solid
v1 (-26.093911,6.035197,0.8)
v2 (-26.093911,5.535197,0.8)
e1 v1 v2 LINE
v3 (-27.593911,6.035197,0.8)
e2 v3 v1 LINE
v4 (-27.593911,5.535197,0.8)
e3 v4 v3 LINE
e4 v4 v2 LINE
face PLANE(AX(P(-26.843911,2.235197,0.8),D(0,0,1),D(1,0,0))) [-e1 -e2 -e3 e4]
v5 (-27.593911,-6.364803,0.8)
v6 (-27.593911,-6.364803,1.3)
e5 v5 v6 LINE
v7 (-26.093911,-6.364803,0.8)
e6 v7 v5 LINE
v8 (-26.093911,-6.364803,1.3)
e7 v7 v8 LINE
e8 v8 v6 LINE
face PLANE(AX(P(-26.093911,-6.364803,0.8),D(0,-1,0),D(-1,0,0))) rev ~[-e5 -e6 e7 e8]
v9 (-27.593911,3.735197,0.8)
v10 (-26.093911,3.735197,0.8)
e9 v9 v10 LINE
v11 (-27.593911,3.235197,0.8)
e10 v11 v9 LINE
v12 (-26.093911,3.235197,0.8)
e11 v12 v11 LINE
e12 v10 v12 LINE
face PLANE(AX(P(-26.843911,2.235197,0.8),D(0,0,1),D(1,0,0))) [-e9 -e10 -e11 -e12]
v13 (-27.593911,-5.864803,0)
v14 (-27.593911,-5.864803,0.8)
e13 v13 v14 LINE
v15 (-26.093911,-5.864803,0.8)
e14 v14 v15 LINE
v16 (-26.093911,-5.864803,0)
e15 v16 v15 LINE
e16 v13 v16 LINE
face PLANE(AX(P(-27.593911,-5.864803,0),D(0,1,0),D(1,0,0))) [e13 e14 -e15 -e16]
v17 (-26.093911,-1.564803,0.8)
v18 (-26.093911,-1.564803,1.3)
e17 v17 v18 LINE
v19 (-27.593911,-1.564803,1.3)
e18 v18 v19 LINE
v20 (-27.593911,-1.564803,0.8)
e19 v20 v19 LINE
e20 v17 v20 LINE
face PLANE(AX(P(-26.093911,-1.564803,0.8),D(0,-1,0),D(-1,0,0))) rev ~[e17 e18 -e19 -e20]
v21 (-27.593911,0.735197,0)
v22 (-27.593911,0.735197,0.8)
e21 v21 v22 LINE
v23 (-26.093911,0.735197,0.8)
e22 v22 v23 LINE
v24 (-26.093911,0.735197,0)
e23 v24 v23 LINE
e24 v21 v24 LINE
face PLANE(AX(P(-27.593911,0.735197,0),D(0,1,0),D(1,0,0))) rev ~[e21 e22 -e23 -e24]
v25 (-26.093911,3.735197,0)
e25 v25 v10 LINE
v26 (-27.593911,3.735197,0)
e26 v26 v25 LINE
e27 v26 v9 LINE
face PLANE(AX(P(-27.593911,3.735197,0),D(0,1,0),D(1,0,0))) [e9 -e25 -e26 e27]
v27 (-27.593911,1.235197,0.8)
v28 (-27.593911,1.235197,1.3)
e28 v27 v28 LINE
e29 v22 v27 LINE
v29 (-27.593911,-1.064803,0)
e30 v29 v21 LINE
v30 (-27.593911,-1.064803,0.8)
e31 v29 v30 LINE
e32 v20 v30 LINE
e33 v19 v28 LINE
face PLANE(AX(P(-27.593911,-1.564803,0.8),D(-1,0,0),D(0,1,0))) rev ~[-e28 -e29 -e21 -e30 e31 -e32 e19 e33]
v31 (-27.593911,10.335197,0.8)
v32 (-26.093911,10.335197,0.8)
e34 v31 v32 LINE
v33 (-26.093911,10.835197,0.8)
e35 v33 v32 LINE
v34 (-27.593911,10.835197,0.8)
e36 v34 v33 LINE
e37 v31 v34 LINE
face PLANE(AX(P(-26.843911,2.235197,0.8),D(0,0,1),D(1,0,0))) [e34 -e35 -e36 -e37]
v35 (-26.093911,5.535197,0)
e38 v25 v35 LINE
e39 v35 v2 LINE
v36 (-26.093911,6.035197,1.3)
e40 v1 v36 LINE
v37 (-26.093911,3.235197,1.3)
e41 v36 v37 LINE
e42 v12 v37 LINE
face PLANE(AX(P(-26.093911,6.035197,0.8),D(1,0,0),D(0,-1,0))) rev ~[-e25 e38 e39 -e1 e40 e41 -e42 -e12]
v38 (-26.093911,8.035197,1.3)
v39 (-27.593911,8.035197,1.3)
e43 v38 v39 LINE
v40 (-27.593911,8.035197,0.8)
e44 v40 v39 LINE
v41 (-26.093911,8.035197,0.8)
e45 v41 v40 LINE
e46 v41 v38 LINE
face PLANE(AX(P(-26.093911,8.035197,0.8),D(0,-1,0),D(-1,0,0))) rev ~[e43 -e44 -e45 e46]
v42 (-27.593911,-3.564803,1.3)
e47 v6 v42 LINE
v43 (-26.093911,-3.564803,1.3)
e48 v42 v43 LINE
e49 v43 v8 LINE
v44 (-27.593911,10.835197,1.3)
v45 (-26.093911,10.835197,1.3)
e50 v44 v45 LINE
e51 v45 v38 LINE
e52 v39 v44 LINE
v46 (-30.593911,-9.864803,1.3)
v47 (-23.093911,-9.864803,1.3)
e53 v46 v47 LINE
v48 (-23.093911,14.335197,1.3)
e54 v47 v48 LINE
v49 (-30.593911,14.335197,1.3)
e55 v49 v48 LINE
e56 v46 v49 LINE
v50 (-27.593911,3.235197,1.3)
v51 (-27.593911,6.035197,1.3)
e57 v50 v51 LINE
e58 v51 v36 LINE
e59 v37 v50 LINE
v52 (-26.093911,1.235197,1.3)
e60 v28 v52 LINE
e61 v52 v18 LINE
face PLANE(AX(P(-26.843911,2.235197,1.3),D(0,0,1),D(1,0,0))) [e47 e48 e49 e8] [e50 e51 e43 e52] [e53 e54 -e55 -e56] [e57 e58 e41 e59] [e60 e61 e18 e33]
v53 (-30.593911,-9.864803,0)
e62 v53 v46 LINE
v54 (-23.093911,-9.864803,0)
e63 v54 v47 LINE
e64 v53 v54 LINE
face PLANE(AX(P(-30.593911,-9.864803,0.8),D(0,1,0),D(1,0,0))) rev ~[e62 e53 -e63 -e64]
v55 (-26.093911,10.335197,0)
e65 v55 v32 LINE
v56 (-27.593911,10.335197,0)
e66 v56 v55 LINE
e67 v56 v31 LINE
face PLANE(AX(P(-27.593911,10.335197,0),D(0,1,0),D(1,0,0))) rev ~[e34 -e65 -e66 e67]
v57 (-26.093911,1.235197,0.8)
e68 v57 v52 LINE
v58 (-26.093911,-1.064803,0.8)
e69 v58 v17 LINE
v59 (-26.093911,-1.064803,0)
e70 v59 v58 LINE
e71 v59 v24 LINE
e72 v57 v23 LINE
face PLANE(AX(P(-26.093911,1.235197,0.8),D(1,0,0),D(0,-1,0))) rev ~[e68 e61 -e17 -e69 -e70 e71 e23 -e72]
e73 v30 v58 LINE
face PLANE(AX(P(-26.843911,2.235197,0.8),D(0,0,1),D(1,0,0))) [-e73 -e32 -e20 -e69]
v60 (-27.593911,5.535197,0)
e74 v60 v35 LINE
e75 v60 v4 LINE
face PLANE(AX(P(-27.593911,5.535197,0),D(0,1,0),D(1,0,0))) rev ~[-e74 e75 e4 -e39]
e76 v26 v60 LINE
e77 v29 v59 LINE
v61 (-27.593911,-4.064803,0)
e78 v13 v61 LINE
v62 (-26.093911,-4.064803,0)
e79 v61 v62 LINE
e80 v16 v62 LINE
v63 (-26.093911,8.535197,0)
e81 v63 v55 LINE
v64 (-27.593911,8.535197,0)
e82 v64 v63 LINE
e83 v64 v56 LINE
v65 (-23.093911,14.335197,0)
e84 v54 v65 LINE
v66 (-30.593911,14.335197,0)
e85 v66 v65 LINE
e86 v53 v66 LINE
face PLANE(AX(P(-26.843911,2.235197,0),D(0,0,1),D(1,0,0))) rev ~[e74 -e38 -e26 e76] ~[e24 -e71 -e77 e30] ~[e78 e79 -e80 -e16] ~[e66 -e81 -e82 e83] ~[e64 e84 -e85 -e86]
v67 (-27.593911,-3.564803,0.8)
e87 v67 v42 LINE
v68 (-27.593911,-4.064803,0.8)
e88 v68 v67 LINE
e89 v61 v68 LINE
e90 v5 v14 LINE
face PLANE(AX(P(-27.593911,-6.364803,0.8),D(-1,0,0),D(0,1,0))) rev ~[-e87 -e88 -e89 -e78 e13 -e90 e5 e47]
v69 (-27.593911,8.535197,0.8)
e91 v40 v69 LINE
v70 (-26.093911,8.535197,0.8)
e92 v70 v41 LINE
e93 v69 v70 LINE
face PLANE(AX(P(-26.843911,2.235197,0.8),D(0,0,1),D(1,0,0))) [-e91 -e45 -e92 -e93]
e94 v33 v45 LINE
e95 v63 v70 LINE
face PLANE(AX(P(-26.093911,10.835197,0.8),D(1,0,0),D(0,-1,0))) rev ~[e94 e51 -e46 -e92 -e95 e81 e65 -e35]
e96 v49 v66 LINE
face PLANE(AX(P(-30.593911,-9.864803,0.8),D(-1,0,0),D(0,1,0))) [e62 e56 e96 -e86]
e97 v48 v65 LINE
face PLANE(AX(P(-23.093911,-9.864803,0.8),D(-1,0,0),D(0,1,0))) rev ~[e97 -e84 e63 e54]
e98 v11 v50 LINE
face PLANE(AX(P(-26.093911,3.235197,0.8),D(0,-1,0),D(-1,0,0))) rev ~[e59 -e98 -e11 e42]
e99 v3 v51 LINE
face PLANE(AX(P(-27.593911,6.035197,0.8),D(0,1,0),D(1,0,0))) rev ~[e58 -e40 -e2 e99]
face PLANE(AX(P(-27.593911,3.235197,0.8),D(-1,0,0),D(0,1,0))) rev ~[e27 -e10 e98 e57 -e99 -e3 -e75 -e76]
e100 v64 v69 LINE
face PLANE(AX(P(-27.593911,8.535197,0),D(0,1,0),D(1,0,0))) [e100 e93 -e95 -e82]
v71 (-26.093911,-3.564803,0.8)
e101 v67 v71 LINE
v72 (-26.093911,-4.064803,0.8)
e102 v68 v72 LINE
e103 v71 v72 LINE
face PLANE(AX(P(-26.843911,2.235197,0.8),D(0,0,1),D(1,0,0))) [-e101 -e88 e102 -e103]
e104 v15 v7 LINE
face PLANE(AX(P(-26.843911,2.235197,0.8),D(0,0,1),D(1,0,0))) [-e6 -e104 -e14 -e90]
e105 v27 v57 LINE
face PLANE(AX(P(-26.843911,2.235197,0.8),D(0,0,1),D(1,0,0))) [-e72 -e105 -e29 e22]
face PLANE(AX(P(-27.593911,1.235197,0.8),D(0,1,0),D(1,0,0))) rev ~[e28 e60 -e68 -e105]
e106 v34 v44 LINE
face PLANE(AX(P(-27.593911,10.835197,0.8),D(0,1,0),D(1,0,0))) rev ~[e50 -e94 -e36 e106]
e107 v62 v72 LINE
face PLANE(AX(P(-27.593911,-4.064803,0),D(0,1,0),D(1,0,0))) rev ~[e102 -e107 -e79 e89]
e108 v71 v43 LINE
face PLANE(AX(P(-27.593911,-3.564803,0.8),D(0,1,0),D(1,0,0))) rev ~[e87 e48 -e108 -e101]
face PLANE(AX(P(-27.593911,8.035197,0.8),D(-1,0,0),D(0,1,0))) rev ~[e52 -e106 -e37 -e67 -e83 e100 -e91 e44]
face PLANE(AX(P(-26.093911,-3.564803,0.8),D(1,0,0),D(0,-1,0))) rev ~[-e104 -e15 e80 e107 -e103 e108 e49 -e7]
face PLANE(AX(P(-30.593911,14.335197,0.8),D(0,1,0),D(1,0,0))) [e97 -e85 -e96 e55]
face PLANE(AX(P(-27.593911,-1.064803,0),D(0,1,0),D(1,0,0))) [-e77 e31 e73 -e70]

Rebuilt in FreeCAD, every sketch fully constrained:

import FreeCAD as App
import Part
import Sketcher

V = App.Vector


def add_polygon(sketch, points):
    """Adds a closed chain of lines whose ends are joined by coincident constraints."""
    first, n = sketch.GeometryCount, len(points)
    for a, b in zip(points, points[1:] + points[:1]):
        sketch.addGeometry(Part.LineSegment(App.Vector(*a, 0), App.Vector(*b, 0)), False)
    for i in range(n):
        sketch.addConstraint(Sketcher.Constraint("Coincident", first + i, 2, first + (i + 1) % n, 1))

doc = App.newDocument("Part")
body = doc.addObject("PartDesign::Body", "Body")

# Sketch on XY plane
sketch1 = doc.addObject("Sketcher::SketchObject", "Sketch")
body.addObject(sketch1)
sketch1.AttachmentSupport = (doc.XY_Plane, [""])
sketch1.MapMode = "FlatFace"
add_polygon(sketch1, [(-30.6, 14.3), (-30.6, -9.9), (-23.1, -9.9), (-23.1, 14.3)])  # lines 0-3
add_polygon(sketch1, [(-26.1, -5.9), (-27.6, -5.9), (-27.6, -4.1), (-26.1, -4.1)])  # lines 4-7
add_polygon(sketch1, [(-26.1, -1.1), (-27.6, -1.1), (-27.6, 0.7), (-26.1, 0.7)])  # lines 8-11
add_polygon(sketch1, [(-26.1, 3.7), (-27.6, 3.7), (-27.6, 5.5), (-26.1, 5.5)])  # lines 12-15
add_polygon(sketch1, [(-26.1, 8.5), (-27.6, 8.5), (-27.6, 10.3), (-26.1, 10.3)])  # lines 16-19
sketch1.addConstraint([
    Sketcher.Constraint("Vertical", 0),
    Sketcher.Constraint("Horizontal", 1),
    Sketcher.Constraint("Vertical", 2),
    Sketcher.Constraint("Horizontal", 3),
    Sketcher.Constraint("Horizontal", 4),
    Sketcher.Constraint("Vertical", 5),
    Sketcher.Constraint("Horizontal", 6),
    Sketcher.Constraint("Vertical", 7),
    Sketcher.Constraint("Horizontal", 8),
    Sketcher.Constraint("Vertical", 9),
    Sketcher.Constraint("Horizontal", 10),
    Sketcher.Constraint("Vertical", 11),
    Sketcher.Constraint("Horizontal", 12),
    Sketcher.Constraint("Vertical", 13),
    Sketcher.Constraint("Horizontal", 14),
    Sketcher.Constraint("Vertical", 15),
    Sketcher.Constraint("Horizontal", 16),
    Sketcher.Constraint("Vertical", 17),
    Sketcher.Constraint("Horizontal", 18),
    Sketcher.Constraint("Vertical", 19),
    Sketcher.Constraint("Vertical", 5, 2, 8, 2),
    Sketcher.Constraint("Vertical", 7, 2, 10, 2),
    Sketcher.Constraint("Vertical", 9, 2, 12, 2),
    Sketcher.Constraint("Vertical", 11, 2, 14, 2),
    Sketcher.Constraint("Vertical", 13, 2, 16, 2),
    Sketcher.Constraint("Vertical", 15, 2, 18, 2),
    Sketcher.Constraint("Equal", 7, 9),
    Sketcher.Constraint("Equal", 11, 13),
    Sketcher.Constraint("Equal", 15, 17),
    Sketcher.Constraint("DistanceX", 1, 1, 1, 2, 7.5),
    Sketcher.Constraint("DistanceX", 4, 2, 4, 1, 1.5),
    Sketcher.Constraint("DistanceY", 0, 2, 0, 1, 24.2),
    Sketcher.Constraint("DistanceY", 5, 1, 5, 2, 1.8),
    Sketcher.Constraint("DistanceX", 0, 2, 4, 2, 3.0),
    Sketcher.Constraint("DistanceY", 0, 2, 4, 2, 4.0),
    Sketcher.Constraint("DistanceY", 5, 2, 8, 2, 3.0),
    Sketcher.Constraint("DistanceY", 9, 2, 12, 2, 3.0),
    Sketcher.Constraint("DistanceY", 13, 2, 16, 2, 3.0),
    Sketcher.Constraint("DistanceX", 0, 2, -1, 1, 30.593911),
    Sketcher.Constraint("DistanceY", 0, 2, -1, 1, 9.864803),
])
pad1 = doc.addObject("PartDesign::Pad", "Pad")
body.addObject(pad1)
pad1.Profile = sketch1
pad1.Length = 0.8

# Sketch on XY plane
sketch2 = doc.addObject("Sketcher::SketchObject", "Sketch001")
body.addObject(sketch2)
sketch2.AttachmentSupport = (doc.XY_Plane, [""])
sketch2.MapMode = "FlatFace"
sketch2.AttachmentOffset = App.Placement(V(0, 0, 0.8), App.Rotation())
add_polygon(sketch2, [(-30.6, 14.3), (-30.6, -9.9), (-23.1, -9.9), (-23.1, 14.3)])  # lines 0-3
add_polygon(sketch2, [(-27.6, -6.4), (-27.6, -3.6), (-26.1, -3.6), (-26.1, -6.4)])  # lines 4-7
add_polygon(sketch2, [(-27.6, -1.6), (-27.6, 1.2), (-26.1, 1.2), (-26.1, -1.6)])  # lines 8-11
add_polygon(sketch2, [(-27.6, 3.2), (-27.6, 6), (-26.1, 6), (-26.1, 3.2)])  # lines 12-15
add_polygon(sketch2, [(-26.1, 10.8), (-26.1, 8), (-27.6, 8), (-27.6, 10.8)])  # lines 16-19
sketch2.addConstraint([
    Sketcher.Constraint("Vertical", 0),
    Sketcher.Constraint("Horizontal", 1),
    Sketcher.Constraint("Vertical", 2),
    Sketcher.Constraint("Horizontal", 3),
    Sketcher.Constraint("Vertical", 4),
    Sketcher.Constraint("Horizontal", 5),
    Sketcher.Constraint("Vertical", 6),
    Sketcher.Constraint("Horizontal", 7),
    Sketcher.Constraint("Vertical", 8),
    Sketcher.Constraint("Horizontal", 9),
    Sketcher.Constraint("Vertical", 10),
    Sketcher.Constraint("Horizontal", 11),
    Sketcher.Constraint("Vertical", 12),
    Sketcher.Constraint("Horizontal", 13),
    Sketcher.Constraint("Vertical", 14),
    Sketcher.Constraint("Horizontal", 15),
    Sketcher.Constraint("Vertical", 16),
    Sketcher.Constraint("Horizontal", 17),
    Sketcher.Constraint("Vertical", 18),
    Sketcher.Constraint("Horizontal", 19),
    Sketcher.Constraint("Vertical", 7, 2, 8, 2),
    Sketcher.Constraint("Vertical", 6, 2, 9, 2),
    Sketcher.Constraint("Vertical", 11, 2, 12, 2),
    Sketcher.Constraint("Vertical", 10, 2, 13, 2),
    Sketcher.Constraint("Vertical", 14, 2, 16, 2),
    Sketcher.Constraint("Vertical", 15, 2, 17, 2),
    Sketcher.Constraint("Equal", 6, 8),
    Sketcher.Constraint("Equal", 10, 12),
    Sketcher.Constraint("Equal", 14, 16),
    Sketcher.Constraint("DistanceX", 1, 1, 1, 2, 7.5),
    Sketcher.Constraint("DistanceX", 5, 1, 5, 2, 1.5),
    Sketcher.Constraint("DistanceY", 0, 2, 0, 1, 24.2),
    Sketcher.Constraint("DistanceY", 4, 1, 4, 2, 2.8),
    Sketcher.Constraint("DistanceX", 0, 2, 4, 2, 3.0),
    Sketcher.Constraint("DistanceY", 5, 2, 10, 2, 2.0),
    Sketcher.Constraint("DistanceY", 9, 2, 14, 2, 2.0),
    Sketcher.Constraint("DistanceY", 13, 2, 16, 2, 2.0),
    Sketcher.Constraint("DistanceY", 0, 2, 4, 2, 6.3),
    Sketcher.Constraint("DistanceX", 0, 2, -1, 1, 30.593911),
    Sketcher.Constraint("DistanceY", 0, 2, -1, 1, 9.864803),
])
pad2 = doc.addObject("PartDesign::Pad", "Pad001")
body.addObject(pad2)
pad2.Profile = sketch2
pad2.Length = 0.5

doc.recompute()
